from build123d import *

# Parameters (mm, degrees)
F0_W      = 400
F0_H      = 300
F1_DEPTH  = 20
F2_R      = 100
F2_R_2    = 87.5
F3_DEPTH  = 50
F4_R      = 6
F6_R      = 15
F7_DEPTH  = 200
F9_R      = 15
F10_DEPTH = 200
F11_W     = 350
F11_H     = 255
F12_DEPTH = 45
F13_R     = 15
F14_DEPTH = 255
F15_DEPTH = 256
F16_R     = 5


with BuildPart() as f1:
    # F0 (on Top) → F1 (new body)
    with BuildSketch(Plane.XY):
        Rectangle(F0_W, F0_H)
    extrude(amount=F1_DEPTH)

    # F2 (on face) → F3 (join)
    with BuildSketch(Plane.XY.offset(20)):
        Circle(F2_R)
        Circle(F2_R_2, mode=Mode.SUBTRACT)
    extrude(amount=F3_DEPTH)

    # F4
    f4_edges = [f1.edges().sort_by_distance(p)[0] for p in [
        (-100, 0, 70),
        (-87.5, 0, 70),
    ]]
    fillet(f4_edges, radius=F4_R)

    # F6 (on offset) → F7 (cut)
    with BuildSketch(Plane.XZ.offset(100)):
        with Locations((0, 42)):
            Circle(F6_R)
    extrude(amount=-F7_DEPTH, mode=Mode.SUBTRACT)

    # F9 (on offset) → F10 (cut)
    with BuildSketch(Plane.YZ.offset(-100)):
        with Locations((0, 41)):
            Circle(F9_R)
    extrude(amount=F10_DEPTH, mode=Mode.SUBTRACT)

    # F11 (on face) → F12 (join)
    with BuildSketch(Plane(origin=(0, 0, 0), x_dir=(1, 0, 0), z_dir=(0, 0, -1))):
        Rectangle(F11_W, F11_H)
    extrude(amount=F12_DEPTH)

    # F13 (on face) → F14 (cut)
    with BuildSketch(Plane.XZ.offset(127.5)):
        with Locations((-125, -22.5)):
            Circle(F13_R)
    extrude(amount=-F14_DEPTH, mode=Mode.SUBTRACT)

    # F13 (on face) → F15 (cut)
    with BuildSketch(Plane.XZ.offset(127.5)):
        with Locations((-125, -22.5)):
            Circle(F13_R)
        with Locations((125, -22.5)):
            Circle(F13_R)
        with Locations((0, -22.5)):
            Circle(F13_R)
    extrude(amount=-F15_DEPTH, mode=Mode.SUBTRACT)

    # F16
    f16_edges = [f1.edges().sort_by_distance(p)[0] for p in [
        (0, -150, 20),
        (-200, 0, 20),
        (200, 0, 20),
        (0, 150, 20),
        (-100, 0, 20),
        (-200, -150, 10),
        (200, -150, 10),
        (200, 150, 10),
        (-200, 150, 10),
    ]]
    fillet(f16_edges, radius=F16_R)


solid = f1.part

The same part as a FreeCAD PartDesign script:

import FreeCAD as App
import Part
import Sketcher
from FreeCAD import Vector


def edges_at(feature, points):
    """Names of the edges that pass closest to the given points."""
    edges = feature.Shape.Edges
    near = lambda p: min(range(len(edges)), key=lambda i: edges[i].distToShape(Part.Vertex(*p))[0])
    return sorted({f"Edge{near(p) + 1}" for p in points})


def add_polygon(sketch, points):
    """Adds a closed chain of lines whose ends are joined by coincident constraints."""
    first, n = sketch.GeometryCount, len(points)
    for a, b in zip(points, points[1:] + points[:1]):
        sketch.addGeometry(Part.LineSegment(App.Vector(*a, 0), App.Vector(*b, 0)), False)
    for i in range(n):
        sketch.addConstraint(Sketcher.Constraint("Coincident", first + i, 2, first + (i + 1) % n, 1))

doc = App.newDocument("Part")
body = doc.addObject("PartDesign::Body", "Body")

# Sketch on XY plane
sketch1 = body.newObject("Sketcher::SketchObject", "Sketch")
sketch1.AttachmentSupport = (doc.getObject("XY_Plane"), [""])
sketch1.MapMode = "FlatFace"
add_polygon(sketch1, [(-200, 150), (-200, -150), (200, -150), (200, 150)])  # lines 0-3
sketch1.addConstraint(Sketcher.Constraint("Vertical", 0))
sketch1.addConstraint(Sketcher.Constraint("Horizontal", 1))
sketch1.addConstraint(Sketcher.Constraint("Vertical", 2))
sketch1.addConstraint(Sketcher.Constraint("Horizontal", 3))
sketch1.addConstraint(Sketcher.Constraint("Symmetric", 0, 2, 2, 2, -1, 1))
sketch1.addConstraint(Sketcher.Constraint("DistanceX", 1, 1, 1, 2, 400.0))
sketch1.addConstraint(Sketcher.Constraint("DistanceY", 0, 2, 0, 1, 300.0))
pad1 = body.newObject("PartDesign::Pad", "Pad")
pad1.Profile = sketch1
pad1.Length = 20

# Sketch on XY plane
sketch2 = body.newObject("Sketcher::SketchObject", "Sketch001")
sketch2.AttachmentSupport = (doc.getObject("XY_Plane"), [""])
sketch2.MapMode = "FlatFace"
sketch2.AttachmentOffset = App.Placement(Vector(0, 0, 20), App.Rotation())
sketch2.addGeometry(Part.Circle(Vector(0, 0, 0), Vector(0, 0, 1), 100), False)
sketch2.addGeometry(Part.Circle(Vector(0, 0, 0), Vector(0, 0, 1), 87.5), False)
sketch2.addConstraint(Sketcher.Constraint("Coincident", 0, 3, -1, 1))
sketch2.addConstraint(Sketcher.Constraint("Coincident", 1, 3, -1, 1))
sketch2.addConstraint(Sketcher.Constraint("Diameter", 0, 200.0))
sketch2.addConstraint(Sketcher.Constraint("Diameter", 1, 175.0))
pad2 = body.newObject("PartDesign::Pad", "Pad001")
pad2.Profile = sketch2
pad2.Length = 50
doc.recompute()

fillet = body.newObject("PartDesign::Fillet", "Fillet")
fillet.Base = (pad2, edges_at(pad2, [(-100, 0, 70), (-87.5, 0, 70)]))
fillet.Radius = 6

# Sketch on XZ plane
sketch3 = body.newObject("Sketcher::SketchObject", "Sketch002")
sketch3.AttachmentSupport = (doc.getObject("XZ_Plane"), [""])
sketch3.MapMode = "FlatFace"
sketch3.AttachmentOffset = App.Placement(Vector(0, 0, 100), App.Rotation())
sketch3.addGeometry(Part.Circle(Vector(0, 42, 0), Vector(0, 0, 1), 15), False)
sketch3.addConstraint(Sketcher.Constraint("PointOnObject", 0, 3, -2))
sketch3.addConstraint(Sketcher.Constraint("Diameter", 0, 30.0))
sketch3.addConstraint(Sketcher.Constraint("DistanceY", -1, 1, 0, 3, 42.0))
pocket1 = body.newObject("PartDesign::Pocket", "Pocket")
pocket1.Profile = sketch3
pocket1.Length = 200

# Sketch on YZ plane
sketch4 = body.newObject("Sketcher::SketchObject", "Sketch003")
sketch4.AttachmentSupport = (doc.getObject("YZ_Plane"), [""])
sketch4.MapMode = "FlatFace"
sketch4.AttachmentOffset = App.Placement(Vector(0, 0, -100), App.Rotation())
sketch4.addGeometry(Part.Circle(Vector(0, 41, 0), Vector(0, 0, 1), 15), False)
sketch4.addConstraint(Sketcher.Constraint("PointOnObject", 0, 3, -2))
sketch4.addConstraint(Sketcher.Constraint("Diameter", 0, 30.0))
sketch4.addConstraint(Sketcher.Constraint("DistanceY", -1, 1, 0, 3, 41.0))
pocket2 = body.newObject("PartDesign::Pocket", "Pocket001")
pocket2.Profile = sketch4
pocket2.Length = 200
pocket2.Reversed = True

# Sketch on XY plane
sketch5 = body.newObject("Sketcher::SketchObject", "Sketch004")
sketch5.AttachmentSupport = (doc.getObject("XY_Plane"), [""])
sketch5.MapMode = "FlatFace"
add_polygon(sketch5, [(-175, -127.5), (-175, 127.5), (175, 127.5), (175, -127.5)])  # lines 0-3
sketch5.addConstraint(Sketcher.Constraint("Vertical", 0))
sketch5.addConstraint(Sketcher.Constraint("Horizontal", 1))
sketch5.addConstraint(Sketcher.Constraint("Vertical", 2))
sketch5.addConstraint(Sketcher.Constraint("Horizontal", 3))
sketch5.addConstraint(Sketcher.Constraint("Symmetric", 0, 2, 2, 2, -1, 1))
sketch5.addConstraint(Sketcher.Constraint("DistanceX", 1, 1, 1, 2, 350.0))
sketch5.addConstraint(Sketcher.Constraint("DistanceY", 0, 1, 0, 2, 255.0))
pad3 = body.newObject("PartDesign::Pad", "Pad002")
pad3.Profile = sketch5
pad3.Length = 45
pad3.Reversed = True

# Sketch on XZ plane
sketch6 = body.newObject("Sketcher::SketchObject", "Sketch005")
sketch6.AttachmentSupport = (doc.getObject("XZ_Plane"), [""])
sketch6.MapMode = "FlatFace"
sketch6.AttachmentOffset = App.Placement(Vector(0, 0, 127.5), App.Rotation())
sketch6.addGeometry(Part.Circle(Vector(-125, -22.5, 0), Vector(0, 0, 1), 15), False)
sketch6.addConstraint(Sketcher.Constraint("Diameter", 0, 30.0))
sketch6.addConstraint(Sketcher.Constraint("DistanceX", 0, 3, -1, 1, 125.0))
sketch6.addConstraint(Sketcher.Constraint("DistanceY", 0, 3, -1, 1, 22.5))
pocket3 = body.newObject("PartDesign::Pocket", "Pocket002")
pocket3.Profile = sketch6
pocket3.Length = 255

# Sketch on XZ plane
sketch7 = body.newObject("Sketcher::SketchObject", "Sketch006")
sketch7.AttachmentSupport = (doc.getObject("XZ_Plane"), [""])
sketch7.MapMode = "FlatFace"
sketch7.AttachmentOffset = App.Placement(Vector(0, 0, 127.5), App.Rotation())
sketch7.addGeometry(Part.Circle(Vector(-125, -22.5, 0), Vector(0, 0, 1), 15), False)
sketch7.addGeometry(Part.Circle(Vector(125, -22.5, 0), Vector(0, 0, 1), 15), False)
sketch7.addGeometry(Part.Circle(Vector(0, -22.5, 0), Vector(0, 0, 1), 15), False)
sketch7.addConstraint(Sketcher.Constraint("Equal", 0, 1))
sketch7.addConstraint(Sketcher.Constraint("Equal", 1, 2))
sketch7.addConstraint(Sketcher.Constraint("Symmetric", 0, 3, 1, 3, -2))
sketch7.addConstraint(Sketcher.Constraint("PointOnObject", 2, 3, -2))
sketch7.addConstraint(Sketcher.Constraint("Horizontal", 1, 3, 2, 3))
sketch7.addConstraint(Sketcher.Constraint("Diameter", 0, 30.0))
sketch7.addConstraint(Sketcher.Constraint("DistanceX", 0, 3, -1, 1, 125.0))
sketch7.addConstraint(Sketcher.Constraint("DistanceY", 0, 3, -1, 1, 22.5))
pocket4 = body.newObject("PartDesign::Pocket", "Pocket003")
pocket4.Profile = sketch7
pocket4.Length = 256
doc.recompute()

fillet2 = body.newObject("PartDesign::Fillet", "Fillet001")
fillet2.Base = (pocket4, edges_at(pocket4, [
    (0, -150, 20),
    (-200, 0, 20),
    (200, 0, 20),
    (0, 150, 20),
    (-100, 0, 20),
    (-200, -150, 10),
    (200, -150, 10),
    (200, 150, 10),
    (-200, 150, 10),
]))
fillet2.Radius = 5

doc.recompute()
